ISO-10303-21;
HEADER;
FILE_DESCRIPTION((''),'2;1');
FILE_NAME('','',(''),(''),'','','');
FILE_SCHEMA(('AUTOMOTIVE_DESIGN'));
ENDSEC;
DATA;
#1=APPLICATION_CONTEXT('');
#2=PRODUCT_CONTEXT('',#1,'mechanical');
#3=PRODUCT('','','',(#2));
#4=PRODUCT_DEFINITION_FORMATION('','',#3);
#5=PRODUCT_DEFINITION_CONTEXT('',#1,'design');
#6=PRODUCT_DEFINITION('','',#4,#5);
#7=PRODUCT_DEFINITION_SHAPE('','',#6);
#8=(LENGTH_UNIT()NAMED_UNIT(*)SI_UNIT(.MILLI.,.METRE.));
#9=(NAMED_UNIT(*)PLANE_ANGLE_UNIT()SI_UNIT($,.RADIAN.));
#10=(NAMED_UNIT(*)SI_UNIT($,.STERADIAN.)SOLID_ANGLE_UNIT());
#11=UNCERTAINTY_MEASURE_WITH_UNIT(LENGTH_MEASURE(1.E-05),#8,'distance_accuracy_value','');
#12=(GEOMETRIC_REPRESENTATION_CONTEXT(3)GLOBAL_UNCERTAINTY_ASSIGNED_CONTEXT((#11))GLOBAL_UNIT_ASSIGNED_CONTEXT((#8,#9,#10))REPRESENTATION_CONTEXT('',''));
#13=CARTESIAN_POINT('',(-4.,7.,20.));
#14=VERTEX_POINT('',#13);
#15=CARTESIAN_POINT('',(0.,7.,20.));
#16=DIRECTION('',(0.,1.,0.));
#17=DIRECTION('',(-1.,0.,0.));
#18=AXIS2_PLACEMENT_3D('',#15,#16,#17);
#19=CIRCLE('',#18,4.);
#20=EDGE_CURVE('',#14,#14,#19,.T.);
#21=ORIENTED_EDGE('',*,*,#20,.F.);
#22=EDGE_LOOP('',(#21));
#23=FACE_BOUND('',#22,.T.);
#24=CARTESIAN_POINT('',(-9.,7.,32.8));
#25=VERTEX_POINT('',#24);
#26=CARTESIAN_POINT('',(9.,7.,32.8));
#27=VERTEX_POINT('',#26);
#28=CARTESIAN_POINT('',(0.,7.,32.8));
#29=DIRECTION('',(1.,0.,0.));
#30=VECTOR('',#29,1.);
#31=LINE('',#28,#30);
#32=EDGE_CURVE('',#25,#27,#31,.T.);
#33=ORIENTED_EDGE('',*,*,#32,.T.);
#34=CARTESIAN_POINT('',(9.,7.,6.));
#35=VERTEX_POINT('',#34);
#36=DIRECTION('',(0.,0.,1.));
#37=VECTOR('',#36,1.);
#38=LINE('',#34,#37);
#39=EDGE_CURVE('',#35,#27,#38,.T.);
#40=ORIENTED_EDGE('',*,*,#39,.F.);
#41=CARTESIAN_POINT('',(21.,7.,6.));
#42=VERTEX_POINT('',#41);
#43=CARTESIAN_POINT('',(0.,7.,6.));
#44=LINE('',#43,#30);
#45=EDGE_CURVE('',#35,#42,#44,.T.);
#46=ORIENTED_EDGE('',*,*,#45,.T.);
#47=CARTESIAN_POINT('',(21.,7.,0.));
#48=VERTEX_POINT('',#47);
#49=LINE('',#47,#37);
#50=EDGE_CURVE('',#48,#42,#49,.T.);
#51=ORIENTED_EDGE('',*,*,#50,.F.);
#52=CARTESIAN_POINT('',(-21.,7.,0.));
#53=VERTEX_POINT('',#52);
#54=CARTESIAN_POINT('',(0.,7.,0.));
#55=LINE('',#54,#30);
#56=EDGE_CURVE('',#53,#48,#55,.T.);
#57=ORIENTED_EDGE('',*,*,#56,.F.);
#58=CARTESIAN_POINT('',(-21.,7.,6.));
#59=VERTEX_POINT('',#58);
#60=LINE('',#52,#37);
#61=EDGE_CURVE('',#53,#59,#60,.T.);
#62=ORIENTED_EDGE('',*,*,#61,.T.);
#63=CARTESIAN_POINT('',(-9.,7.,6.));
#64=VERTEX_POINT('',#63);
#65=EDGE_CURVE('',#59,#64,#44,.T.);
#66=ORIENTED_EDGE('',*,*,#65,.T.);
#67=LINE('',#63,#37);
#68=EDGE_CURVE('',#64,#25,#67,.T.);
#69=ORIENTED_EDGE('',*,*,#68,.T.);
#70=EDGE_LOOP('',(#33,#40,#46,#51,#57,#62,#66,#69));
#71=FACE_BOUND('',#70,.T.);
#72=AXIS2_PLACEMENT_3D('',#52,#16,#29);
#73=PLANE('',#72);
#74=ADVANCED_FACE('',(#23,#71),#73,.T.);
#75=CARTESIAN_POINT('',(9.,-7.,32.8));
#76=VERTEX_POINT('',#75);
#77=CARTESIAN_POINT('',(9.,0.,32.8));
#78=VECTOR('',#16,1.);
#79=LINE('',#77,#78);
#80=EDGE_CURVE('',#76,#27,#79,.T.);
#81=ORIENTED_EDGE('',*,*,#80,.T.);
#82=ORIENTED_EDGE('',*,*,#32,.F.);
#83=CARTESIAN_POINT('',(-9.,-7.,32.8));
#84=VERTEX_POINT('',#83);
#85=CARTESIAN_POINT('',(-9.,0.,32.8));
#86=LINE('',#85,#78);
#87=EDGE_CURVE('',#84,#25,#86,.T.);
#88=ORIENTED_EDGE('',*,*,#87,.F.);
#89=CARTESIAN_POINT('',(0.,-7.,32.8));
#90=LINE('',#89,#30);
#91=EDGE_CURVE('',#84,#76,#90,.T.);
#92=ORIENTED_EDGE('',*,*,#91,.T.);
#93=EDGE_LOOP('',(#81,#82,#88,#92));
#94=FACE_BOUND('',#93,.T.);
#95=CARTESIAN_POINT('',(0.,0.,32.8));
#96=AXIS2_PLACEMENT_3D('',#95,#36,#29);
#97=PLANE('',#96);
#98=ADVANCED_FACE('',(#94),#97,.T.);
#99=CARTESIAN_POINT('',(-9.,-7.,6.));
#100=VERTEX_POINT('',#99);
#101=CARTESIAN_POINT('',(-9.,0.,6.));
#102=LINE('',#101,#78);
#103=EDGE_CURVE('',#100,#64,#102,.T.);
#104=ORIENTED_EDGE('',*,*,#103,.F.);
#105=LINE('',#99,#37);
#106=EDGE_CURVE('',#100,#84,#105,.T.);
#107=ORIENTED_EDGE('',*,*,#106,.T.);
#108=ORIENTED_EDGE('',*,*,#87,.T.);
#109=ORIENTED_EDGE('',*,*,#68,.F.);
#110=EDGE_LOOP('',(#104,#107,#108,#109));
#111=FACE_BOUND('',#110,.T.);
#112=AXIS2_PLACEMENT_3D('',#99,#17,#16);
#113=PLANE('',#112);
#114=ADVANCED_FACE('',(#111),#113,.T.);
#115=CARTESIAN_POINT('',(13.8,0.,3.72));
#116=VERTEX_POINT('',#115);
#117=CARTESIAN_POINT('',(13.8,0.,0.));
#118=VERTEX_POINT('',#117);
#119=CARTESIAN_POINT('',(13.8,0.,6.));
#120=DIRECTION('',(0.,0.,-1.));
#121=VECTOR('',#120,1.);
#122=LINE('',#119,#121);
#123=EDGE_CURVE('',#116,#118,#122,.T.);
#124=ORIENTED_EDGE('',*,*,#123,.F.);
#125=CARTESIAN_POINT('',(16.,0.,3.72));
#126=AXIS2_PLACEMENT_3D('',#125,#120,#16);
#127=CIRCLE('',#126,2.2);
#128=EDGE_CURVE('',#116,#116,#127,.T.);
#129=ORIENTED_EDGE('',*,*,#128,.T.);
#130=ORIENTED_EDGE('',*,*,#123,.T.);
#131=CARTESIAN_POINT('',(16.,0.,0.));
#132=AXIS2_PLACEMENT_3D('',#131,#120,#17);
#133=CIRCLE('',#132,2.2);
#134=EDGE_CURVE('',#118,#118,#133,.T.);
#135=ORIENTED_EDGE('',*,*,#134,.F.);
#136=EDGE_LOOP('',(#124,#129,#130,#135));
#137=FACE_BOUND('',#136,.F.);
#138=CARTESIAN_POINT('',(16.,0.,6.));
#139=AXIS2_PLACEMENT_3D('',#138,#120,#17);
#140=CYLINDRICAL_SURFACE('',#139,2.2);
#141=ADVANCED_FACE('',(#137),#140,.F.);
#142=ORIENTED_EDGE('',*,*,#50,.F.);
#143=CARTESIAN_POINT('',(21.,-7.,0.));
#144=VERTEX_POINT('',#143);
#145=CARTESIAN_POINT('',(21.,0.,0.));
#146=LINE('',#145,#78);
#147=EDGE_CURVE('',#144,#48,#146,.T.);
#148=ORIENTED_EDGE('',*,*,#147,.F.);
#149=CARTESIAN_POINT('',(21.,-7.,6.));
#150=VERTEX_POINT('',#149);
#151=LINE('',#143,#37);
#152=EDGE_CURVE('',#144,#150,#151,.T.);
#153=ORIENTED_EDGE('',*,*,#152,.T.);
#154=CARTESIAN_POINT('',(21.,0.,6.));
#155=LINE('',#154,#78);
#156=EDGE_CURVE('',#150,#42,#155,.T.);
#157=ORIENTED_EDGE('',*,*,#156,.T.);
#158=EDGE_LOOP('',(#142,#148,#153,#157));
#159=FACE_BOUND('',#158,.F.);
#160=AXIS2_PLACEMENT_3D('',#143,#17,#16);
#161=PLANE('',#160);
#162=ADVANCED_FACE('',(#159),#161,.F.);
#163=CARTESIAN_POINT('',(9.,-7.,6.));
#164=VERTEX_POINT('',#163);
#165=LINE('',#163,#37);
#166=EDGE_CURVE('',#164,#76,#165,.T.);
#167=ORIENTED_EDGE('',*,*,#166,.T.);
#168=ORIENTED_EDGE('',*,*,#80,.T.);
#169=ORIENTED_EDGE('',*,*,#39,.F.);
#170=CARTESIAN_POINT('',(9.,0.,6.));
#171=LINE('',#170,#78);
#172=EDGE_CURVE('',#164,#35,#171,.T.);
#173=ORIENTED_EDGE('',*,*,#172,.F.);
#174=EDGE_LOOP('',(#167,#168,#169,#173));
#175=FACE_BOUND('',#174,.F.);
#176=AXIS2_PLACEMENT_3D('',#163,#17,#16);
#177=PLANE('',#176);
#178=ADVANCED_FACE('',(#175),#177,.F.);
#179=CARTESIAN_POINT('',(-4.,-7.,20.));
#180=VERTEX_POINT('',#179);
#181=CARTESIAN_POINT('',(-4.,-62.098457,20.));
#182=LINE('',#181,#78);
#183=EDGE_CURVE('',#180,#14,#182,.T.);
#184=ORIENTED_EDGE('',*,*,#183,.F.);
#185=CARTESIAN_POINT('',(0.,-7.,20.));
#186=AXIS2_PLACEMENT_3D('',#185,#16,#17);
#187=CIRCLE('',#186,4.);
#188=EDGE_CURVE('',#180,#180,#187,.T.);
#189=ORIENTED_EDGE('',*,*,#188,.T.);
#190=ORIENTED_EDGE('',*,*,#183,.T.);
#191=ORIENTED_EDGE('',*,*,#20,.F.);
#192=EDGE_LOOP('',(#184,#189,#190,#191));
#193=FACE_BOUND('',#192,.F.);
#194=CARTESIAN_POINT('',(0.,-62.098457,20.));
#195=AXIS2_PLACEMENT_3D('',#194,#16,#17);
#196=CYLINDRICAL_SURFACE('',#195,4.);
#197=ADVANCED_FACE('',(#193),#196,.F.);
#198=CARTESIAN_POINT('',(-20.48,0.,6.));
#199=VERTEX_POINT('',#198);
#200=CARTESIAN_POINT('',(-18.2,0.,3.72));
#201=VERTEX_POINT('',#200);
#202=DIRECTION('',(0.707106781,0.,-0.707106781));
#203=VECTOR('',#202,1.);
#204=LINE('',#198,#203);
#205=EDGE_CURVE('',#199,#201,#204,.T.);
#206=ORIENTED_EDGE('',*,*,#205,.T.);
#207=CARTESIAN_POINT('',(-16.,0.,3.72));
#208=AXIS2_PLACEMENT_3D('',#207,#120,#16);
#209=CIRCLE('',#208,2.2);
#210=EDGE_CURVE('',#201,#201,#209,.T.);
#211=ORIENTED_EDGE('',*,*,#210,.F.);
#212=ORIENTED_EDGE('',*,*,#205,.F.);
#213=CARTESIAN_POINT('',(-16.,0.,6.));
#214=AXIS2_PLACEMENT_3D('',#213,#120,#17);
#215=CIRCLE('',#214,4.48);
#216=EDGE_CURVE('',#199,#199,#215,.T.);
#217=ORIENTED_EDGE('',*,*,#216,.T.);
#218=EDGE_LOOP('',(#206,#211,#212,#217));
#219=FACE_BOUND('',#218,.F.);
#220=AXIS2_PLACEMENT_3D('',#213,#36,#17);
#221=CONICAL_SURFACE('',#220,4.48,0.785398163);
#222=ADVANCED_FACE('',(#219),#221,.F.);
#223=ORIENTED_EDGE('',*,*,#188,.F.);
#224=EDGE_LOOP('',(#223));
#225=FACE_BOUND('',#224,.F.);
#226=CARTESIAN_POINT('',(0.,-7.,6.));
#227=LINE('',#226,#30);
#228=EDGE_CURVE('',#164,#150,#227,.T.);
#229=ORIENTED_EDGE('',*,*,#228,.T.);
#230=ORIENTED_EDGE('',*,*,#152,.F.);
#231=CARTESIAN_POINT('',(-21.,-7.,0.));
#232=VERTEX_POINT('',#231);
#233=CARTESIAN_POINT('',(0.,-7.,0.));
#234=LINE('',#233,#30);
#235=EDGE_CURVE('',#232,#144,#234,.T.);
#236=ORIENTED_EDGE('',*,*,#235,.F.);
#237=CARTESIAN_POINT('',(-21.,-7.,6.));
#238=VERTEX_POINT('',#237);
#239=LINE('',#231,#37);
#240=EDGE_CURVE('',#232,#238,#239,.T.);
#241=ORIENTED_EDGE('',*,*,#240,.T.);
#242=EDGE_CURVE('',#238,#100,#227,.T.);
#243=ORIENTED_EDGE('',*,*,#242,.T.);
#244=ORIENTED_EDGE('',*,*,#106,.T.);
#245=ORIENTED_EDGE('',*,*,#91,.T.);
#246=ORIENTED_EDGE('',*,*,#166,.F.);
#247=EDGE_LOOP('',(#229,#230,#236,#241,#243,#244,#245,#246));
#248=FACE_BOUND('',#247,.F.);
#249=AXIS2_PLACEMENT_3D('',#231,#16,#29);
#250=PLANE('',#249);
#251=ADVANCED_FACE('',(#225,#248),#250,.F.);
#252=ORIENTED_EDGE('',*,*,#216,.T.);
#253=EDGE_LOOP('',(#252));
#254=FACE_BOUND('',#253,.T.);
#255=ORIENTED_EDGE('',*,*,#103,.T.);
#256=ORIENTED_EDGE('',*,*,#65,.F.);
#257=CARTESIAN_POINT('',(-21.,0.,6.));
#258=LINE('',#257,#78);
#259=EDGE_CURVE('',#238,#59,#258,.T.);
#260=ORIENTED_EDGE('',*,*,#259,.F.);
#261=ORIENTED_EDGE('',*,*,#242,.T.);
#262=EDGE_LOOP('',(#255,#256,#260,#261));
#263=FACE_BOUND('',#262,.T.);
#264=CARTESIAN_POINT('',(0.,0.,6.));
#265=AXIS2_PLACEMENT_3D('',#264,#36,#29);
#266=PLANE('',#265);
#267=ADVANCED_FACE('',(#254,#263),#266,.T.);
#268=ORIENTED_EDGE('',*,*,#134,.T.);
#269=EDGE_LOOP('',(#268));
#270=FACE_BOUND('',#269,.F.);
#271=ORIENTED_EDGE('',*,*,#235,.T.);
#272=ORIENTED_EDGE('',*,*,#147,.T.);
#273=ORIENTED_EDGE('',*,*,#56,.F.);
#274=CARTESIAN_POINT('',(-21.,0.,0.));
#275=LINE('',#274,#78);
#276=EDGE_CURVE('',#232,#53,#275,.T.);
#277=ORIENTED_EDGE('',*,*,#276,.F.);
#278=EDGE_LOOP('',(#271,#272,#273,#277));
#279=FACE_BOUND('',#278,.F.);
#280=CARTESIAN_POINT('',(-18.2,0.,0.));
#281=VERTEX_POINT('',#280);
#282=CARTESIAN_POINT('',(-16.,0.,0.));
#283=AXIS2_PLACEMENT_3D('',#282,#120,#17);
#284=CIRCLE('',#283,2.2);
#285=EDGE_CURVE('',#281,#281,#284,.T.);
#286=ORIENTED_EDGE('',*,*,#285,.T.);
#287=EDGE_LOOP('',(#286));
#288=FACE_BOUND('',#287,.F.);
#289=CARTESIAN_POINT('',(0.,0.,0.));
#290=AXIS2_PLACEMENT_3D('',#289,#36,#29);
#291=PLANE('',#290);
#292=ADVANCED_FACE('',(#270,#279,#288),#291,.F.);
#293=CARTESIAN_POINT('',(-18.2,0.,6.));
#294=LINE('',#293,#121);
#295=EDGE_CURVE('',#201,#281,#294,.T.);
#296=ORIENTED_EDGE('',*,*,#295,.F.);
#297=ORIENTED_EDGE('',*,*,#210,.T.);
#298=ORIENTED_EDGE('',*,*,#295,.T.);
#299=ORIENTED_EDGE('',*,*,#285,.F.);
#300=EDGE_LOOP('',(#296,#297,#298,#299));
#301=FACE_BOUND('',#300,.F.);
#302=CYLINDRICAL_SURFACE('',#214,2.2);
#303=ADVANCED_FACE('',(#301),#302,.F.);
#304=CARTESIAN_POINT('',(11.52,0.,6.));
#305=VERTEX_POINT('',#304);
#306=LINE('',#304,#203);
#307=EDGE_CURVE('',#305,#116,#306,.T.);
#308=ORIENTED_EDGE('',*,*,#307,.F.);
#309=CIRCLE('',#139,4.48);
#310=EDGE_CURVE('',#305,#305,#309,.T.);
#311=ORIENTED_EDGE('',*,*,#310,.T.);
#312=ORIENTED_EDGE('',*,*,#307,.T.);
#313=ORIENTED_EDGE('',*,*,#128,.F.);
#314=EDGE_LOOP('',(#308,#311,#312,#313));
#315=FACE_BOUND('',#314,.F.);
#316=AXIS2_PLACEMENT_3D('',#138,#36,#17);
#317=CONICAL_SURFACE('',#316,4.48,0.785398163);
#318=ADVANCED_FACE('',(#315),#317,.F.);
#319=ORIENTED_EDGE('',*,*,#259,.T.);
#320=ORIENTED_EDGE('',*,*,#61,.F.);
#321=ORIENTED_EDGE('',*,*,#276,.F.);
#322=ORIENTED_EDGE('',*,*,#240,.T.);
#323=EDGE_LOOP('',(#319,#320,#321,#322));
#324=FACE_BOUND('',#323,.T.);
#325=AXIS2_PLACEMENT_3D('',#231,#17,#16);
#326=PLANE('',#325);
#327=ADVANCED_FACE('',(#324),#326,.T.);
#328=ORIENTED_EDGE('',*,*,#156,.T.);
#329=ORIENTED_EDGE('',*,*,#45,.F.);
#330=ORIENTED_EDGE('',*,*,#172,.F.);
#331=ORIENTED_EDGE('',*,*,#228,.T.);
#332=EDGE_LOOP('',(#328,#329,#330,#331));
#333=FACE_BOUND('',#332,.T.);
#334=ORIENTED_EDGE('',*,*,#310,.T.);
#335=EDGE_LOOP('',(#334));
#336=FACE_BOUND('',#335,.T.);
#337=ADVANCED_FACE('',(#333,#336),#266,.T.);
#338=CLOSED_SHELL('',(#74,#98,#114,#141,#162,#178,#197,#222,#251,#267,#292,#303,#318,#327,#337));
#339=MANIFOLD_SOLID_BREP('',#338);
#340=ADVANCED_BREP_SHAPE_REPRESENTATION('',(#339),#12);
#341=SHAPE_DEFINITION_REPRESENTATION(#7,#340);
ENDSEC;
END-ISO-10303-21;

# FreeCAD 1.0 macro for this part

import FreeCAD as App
import Part
import Sketcher
from FreeCAD import Vector

doc = App.newDocument("Part")
params = doc.addObject("Spreadsheet::Sheet", "Params")
for row, (alias, value) in enumerate([
    ("sketch1_width", "42 mm"),
    ("sketch1_height", "14 mm"),
    ("pad1_length", "6 mm"),
    ("sketch2_width", "18 mm"),
    ("sketch2_height", "14 mm"),
    ("pad2_length", "26.8 mm"),
    ("sketch3_diameter", "4.4 mm"),
    ("hole_diameter", "4.4 mm"),
    ("hole_csink_diameter", "8.96 mm"),
    ("sketch4_diameter", "8 mm"),
    ("hole2_diameter", "8 mm"),
], start=1):
    params.set(f"A{row}", alias)
    params.set(f"B{row}", "=" + value)
    params.setAlias(f"B{row}", alias)

body = doc.addObject("PartDesign::Body", "Body")

# Sketch on XY plane
sketch1 = body.newObject("Sketcher::SketchObject", "Sketch")
sketch1.AttachmentSupport = (doc.getObject("XY_Plane"), [""])
sketch1.MapMode = "FlatFace"
sketch1.addGeometry([
    Part.LineSegment(Vector(-21, 7, 0), Vector(-21, -7, 0)),
    Part.LineSegment(Vector(-21, -7, 0), Vector(21, -7, 0)),
    Part.LineSegment(Vector(21, -7, 0), Vector(21, 7, 0)),
    Part.LineSegment(Vector(21, 7, 0), Vector(-21, 7, 0)),
], False)
sketch1.addConstraint([
    Sketcher.Constraint("Coincident", 0, 2, 1, 1),
    Sketcher.Constraint("Coincident", 1, 2, 2, 1),
    Sketcher.Constraint("Coincident", 2, 2, 3, 1),
    Sketcher.Constraint("Coincident", 3, 2, 0, 1),
    Sketcher.Constraint("Vertical", 0),
    Sketcher.Constraint("Horizontal", 1),
    Sketcher.Constraint("Vertical", 2),
    Sketcher.Constraint("Horizontal", 3),
    Sketcher.Constraint("Symmetric", 0, 2, 2, 2, -1, 1),
    Sketcher.Constraint("DistanceX", 1, 1, 1, 2, 42.0),
    Sketcher.Constraint("DistanceY", 0, 2, 0, 1, 14.0),
])
sketch1.setExpression("Constraints[9]", "Params.sketch1_width")
sketch1.setExpression("Constraints[10]", "Params.sketch1_height")
pad1 = body.newObject("PartDesign::Pad", "Pad")
pad1.Profile = sketch1
pad1.setExpression("Length", "Params.pad1_length")

# Sketch on XY plane
sketch2 = body.newObject("Sketcher::SketchObject", "Sketch001")
sketch2.AttachmentSupport = (doc.getObject("XY_Plane"), [""])
sketch2.MapMode = "FlatFace"
sketch2.AttachmentOffset = App.Placement(Vector(0, 0, 6), App.Rotation())
sketch2.addGeometry([
    Part.LineSegment(Vector(-9, 7, 0), Vector(-9, -7, 0)),
    Part.LineSegment(Vector(-9, -7, 0), Vector(9, -7, 0)),
    Part.LineSegment(Vector(9, -7, 0), Vector(9, 7, 0)),
    Part.LineSegment(Vector(9, 7, 0), Vector(-9, 7, 0)),
], False)
sketch2.addConstraint([
    Sketcher.Constraint("Coincident", 0, 2, 1, 1),
    Sketcher.Constraint("Coincident", 1, 2, 2, 1),
    Sketcher.Constraint("Coincident", 2, 2, 3, 1),
    Sketcher.Constraint("Coincident", 3, 2, 0, 1),
    Sketcher.Constraint("Vertical", 0),
    Sketcher.Constraint("Horizontal", 1),
    Sketcher.Constraint("Vertical", 2),
    Sketcher.Constraint("Horizontal", 3),
    Sketcher.Constraint("Symmetric", 0, 2, 2, 2, -1, 1),
    Sketcher.Constraint("DistanceX", 1, 1, 1, 2, 18.0),
    Sketcher.Constraint("DistanceY", 0, 2, 0, 1, 14.0),
])
sketch2.setExpression("Constraints[9]", "Params.sketch2_width")
sketch2.setExpression("Constraints[10]", "Params.sketch2_height")
pad2 = body.newObject("PartDesign::Pad", "Pad001")
pad2.Profile = sketch2
pad2.setExpression("Length", "Params.pad2_length")

# Sketch on XY plane
sketch3 = body.newObject("Sketcher::SketchObject", "Sketch002")
sketch3.AttachmentSupport = (doc.getObject("XY_Plane"), [""])
sketch3.MapMode = "FlatFace"
sketch3.AttachmentOffset = App.Placement(Vector(0, 0, 6), App.Rotation())
sketch3.addGeometry([
    Part.Circle(Vector(-16, 0, 0), Vector(0, 0, 1), 2.2),
    Part.Circle(Vector(16, 0, 0), Vector(0, 0, 1), 2.2),
], False)
sketch3.addConstraint([
    Sketcher.Constraint("Equal", 0, 1),
    Sketcher.Constraint("Symmetric", 0, 3, 1, 3, -1, 1),
    Sketcher.Constraint("PointOnObject", 0, 3, -1),
    Sketcher.Constraint("Diameter", 0, 4.4),
    Sketcher.Constraint("DistanceX", 0, 3, -1, 1, 16.0),
])
sketch3.setExpression("Constraints[3]", "Params.sketch3_diameter")
doc.recompute()
hole = body.newObject("PartDesign::Hole", "Hole")
hole.Profile = sketch3
hole.ThreadType = "None"
hole.setExpression("Diameter", "Params.hole_diameter")
hole.DepthType = "ThroughAll"
hole.HoleCutType = "Countersink"
hole.setExpression("HoleCutDiameter", "Params.hole_csink_diameter")
hole.HoleCutCountersinkAngle = 90

# Sketch on XZ plane
sketch4 = body.newObject("Sketcher::SketchObject", "Sketch003")
sketch4.AttachmentSupport = (doc.getObject("XZ_Plane"), [""])
sketch4.MapMode = "FlatFace"
sketch4.AttachmentOffset = App.Placement(Vector(0, 0, 7), App.Rotation())
sketch4.addGeometry(Part.Circle(Vector(0, 20, 0), Vector(0, 0, 1), 4), False)
sketch4.addConstraint([
    Sketcher.Constraint("PointOnObject", 0, 3, -2),
    Sketcher.Constraint("Diameter", 0, 8.0),
    Sketcher.Constraint("DistanceY", -1, 1, 0, 3, 20.0),
])
sketch4.setExpression("Constraints[1]", "Params.sketch4_diameter")
doc.recompute()
hole2 = body.newObject("PartDesign::Hole", "Hole001")
hole2.Profile = sketch4
hole2.ThreadType = "None"
hole2.setExpression("Diameter", "Params.hole2_diameter")
hole2.DepthType = "ThroughAll"

doc.recompute()
